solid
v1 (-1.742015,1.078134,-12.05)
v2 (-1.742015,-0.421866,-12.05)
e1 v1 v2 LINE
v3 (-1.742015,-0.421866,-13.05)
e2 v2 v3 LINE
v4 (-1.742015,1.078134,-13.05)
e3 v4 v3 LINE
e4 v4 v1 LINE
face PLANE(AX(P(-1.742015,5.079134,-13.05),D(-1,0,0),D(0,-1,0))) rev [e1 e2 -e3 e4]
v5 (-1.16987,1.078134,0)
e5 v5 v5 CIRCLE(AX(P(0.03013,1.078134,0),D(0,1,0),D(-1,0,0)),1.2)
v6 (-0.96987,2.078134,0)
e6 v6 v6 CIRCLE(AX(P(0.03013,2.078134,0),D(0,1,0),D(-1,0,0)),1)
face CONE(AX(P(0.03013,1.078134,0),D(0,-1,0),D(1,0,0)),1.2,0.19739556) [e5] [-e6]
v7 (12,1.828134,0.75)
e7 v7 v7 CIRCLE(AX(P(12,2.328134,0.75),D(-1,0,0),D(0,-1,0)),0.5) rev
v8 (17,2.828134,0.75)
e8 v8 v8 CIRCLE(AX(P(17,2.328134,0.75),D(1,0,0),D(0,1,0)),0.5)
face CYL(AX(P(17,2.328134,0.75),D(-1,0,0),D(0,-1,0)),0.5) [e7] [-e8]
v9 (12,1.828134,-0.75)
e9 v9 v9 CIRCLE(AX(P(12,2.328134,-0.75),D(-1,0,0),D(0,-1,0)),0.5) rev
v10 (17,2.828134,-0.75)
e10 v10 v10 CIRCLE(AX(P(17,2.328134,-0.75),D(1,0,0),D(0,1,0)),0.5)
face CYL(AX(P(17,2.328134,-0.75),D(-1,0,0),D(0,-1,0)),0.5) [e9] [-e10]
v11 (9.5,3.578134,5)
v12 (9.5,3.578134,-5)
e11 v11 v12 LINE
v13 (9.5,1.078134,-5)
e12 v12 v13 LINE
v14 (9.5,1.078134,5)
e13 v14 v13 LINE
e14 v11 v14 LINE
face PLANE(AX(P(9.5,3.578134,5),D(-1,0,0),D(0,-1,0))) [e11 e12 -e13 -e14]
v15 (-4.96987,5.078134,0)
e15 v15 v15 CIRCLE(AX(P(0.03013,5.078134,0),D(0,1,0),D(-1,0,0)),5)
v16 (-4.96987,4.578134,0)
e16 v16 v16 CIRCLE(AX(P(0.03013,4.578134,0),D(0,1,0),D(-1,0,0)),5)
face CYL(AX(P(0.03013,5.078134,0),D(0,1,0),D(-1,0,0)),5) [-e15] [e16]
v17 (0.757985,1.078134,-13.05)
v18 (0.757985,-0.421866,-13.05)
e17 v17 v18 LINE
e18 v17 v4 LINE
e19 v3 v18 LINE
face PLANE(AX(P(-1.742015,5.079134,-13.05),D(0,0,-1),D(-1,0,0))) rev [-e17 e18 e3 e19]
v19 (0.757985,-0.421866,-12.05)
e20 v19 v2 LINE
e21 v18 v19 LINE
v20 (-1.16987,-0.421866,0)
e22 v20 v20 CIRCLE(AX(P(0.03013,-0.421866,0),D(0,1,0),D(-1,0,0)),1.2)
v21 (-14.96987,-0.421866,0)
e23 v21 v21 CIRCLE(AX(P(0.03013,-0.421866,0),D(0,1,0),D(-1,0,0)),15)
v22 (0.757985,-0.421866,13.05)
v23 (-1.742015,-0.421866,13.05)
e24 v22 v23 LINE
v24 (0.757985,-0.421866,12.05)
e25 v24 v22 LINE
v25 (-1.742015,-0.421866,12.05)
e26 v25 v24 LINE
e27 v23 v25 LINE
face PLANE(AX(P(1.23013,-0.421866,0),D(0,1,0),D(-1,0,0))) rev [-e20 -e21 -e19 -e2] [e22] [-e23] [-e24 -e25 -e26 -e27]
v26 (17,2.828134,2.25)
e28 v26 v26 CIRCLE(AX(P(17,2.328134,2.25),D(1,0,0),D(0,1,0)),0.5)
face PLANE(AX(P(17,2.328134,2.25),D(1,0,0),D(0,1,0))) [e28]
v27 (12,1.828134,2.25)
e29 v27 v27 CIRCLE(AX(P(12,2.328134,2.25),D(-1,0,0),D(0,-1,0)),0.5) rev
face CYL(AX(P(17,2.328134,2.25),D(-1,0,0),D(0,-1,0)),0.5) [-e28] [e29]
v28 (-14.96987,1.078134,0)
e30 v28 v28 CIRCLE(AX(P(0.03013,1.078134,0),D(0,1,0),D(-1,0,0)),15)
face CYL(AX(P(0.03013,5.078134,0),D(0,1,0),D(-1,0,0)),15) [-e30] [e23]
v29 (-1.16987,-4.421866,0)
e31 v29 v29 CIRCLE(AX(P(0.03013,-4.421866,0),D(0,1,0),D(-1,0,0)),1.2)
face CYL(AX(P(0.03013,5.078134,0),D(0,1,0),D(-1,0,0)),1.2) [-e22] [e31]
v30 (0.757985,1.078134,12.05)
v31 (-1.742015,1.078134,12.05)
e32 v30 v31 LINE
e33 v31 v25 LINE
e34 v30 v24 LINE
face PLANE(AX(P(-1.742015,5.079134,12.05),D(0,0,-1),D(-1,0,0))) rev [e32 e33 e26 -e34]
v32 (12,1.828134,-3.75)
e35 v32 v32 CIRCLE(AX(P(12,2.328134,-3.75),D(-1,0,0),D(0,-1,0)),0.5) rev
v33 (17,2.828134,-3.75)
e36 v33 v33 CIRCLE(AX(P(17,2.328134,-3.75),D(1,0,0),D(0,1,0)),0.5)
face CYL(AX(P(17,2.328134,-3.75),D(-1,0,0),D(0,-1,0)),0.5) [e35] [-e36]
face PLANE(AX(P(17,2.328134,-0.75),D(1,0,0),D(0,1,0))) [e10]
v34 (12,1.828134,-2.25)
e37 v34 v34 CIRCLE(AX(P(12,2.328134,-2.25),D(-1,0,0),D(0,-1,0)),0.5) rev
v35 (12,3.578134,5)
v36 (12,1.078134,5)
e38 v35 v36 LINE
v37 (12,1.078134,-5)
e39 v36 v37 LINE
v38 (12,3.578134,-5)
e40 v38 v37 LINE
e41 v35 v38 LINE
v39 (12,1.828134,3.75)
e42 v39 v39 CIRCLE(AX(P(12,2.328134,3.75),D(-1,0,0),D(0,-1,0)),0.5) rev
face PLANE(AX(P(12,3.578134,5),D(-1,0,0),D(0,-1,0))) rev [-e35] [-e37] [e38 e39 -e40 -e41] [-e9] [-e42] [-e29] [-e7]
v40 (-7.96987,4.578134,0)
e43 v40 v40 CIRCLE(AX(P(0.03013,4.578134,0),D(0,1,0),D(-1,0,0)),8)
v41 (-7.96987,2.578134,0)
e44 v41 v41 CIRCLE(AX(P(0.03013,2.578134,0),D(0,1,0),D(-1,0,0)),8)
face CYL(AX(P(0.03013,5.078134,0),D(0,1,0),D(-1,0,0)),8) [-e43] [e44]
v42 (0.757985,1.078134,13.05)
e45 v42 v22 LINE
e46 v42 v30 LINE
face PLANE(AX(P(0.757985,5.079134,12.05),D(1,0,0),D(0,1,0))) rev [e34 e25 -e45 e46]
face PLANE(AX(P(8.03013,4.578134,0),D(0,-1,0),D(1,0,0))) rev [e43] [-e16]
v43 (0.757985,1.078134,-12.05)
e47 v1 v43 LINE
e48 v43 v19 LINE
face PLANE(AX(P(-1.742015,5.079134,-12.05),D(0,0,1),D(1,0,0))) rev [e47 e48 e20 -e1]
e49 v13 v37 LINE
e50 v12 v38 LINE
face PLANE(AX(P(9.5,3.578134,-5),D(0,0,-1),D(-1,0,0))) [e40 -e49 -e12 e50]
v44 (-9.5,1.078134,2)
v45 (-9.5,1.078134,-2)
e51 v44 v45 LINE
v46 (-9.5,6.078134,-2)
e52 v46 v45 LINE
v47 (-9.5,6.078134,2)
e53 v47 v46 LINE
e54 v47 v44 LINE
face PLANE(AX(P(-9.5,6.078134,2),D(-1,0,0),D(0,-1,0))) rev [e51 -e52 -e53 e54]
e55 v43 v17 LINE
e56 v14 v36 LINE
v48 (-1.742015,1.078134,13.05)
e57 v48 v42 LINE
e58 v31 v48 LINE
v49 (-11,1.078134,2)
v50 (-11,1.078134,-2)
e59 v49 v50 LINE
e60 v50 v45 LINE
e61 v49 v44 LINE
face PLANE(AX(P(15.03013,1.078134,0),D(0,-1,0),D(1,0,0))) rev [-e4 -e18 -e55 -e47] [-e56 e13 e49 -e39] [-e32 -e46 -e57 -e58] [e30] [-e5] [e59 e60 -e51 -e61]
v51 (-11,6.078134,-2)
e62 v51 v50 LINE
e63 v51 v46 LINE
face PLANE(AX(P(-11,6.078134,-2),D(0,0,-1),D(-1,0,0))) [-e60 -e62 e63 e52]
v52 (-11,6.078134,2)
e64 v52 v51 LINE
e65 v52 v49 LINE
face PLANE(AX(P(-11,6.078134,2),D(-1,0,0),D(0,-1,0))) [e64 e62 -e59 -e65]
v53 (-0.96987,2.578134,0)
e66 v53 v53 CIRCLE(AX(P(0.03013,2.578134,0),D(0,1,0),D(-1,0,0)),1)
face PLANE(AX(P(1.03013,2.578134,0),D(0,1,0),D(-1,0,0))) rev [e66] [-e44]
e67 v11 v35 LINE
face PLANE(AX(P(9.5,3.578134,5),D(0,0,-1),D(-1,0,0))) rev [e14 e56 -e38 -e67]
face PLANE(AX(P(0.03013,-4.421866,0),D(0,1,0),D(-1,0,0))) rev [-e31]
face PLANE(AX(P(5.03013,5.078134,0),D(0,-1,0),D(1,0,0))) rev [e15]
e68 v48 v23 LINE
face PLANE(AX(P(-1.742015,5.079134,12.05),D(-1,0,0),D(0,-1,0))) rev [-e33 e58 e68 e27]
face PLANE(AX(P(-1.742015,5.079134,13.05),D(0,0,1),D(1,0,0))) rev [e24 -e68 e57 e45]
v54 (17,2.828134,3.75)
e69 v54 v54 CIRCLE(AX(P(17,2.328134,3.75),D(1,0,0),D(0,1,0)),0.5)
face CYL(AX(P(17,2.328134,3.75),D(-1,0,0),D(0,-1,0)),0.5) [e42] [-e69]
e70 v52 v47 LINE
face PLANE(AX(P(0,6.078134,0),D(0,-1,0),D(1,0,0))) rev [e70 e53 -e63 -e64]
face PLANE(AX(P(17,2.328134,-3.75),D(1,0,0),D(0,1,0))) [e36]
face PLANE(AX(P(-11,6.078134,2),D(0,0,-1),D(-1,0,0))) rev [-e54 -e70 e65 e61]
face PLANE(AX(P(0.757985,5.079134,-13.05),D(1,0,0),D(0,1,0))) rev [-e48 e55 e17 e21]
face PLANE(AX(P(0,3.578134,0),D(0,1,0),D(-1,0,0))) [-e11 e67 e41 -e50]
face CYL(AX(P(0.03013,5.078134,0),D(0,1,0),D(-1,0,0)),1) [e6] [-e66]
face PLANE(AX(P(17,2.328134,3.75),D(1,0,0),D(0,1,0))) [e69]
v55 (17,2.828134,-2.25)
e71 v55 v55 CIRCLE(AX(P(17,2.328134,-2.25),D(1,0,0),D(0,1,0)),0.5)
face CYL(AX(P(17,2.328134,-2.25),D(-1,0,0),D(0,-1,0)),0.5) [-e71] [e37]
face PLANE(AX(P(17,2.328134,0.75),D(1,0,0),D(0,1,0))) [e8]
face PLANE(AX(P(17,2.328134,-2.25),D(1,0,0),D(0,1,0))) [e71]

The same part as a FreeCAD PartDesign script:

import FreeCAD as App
import Part
import Sketcher
from FreeCAD import Vector
Q = App.Units.Quantity

doc = App.newDocument("Part")
body = doc.addObject("PartDesign::Body", "Body")

sketch1 = body.newObject("Sketcher::SketchObject", "Sketch")
sketch1.AttachmentSupport = (doc.getObject("XY_Plane"), [""])
sketch1.MapMode = "FlatFace"
sketch1.addGeometry(Part.LineSegment(Vector(0.03013, -4.421866, 0), Vector(1.23013, -4.421866, 0)), False)
sketch1.addGeometry(Part.LineSegment(Vector(1.23013, -4.421866, 0), Vector(1.23013, -0.421866, 0)), False)
sketch1.addGeometry(Part.LineSegment(Vector(1.23013, -0.421866, 0), Vector(15.03013, -0.421866, 0)), False)
sketch1.addGeometry(Part.LineSegment(Vector(15.03013, -0.421866, 0), Vector(15.03013, 1.078134, 0)), False)
sketch1.addGeometry(Part.LineSegment(Vector(15.03013, 1.078134, 0), Vector(1.23013, 1.078134, 0)), False)
sketch1.addGeometry(Part.LineSegment(Vector(1.23013, 1.078134, 0), Vector(1.03013, 2.078134, 0)), False)
sketch1.addGeometry(Part.LineSegment(Vector(1.03013, 2.078134, 0), Vector(1.03013, 2.578134, 0)), False)
sketch1.addGeometry(Part.LineSegment(Vector(1.03013, 2.578134, 0), Vector(8.03013, 2.578134, 0)), False)
sketch1.addGeometry(Part.LineSegment(Vector(8.03013, 2.578134, 0), Vector(8.03013, 4.578134, 0)), False)
sketch1.addGeometry(Part.LineSegment(Vector(8.03013, 4.578134, 0), Vector(5.03013, 4.578134, 0)), False)
sketch1.addGeometry(Part.LineSegment(Vector(5.03013, 4.578134, 0), Vector(5.03013, 5.078134, 0)), False)
sketch1.addGeometry(Part.LineSegment(Vector(5.03013, 5.078134, 0), Vector(0.03013, 5.078134, 0)), False)
sketch1.addGeometry(Part.LineSegment(Vector(0.03013, 5.078134, 0), Vector(0.03013, -4.421866, 0)), False)
sketch1.addGeometry(Part.LineSegment(Vector(0.03013, 5.078134, 0), Vector(0.03013, -4.421866, 0)), True)
sketch1.addConstraint(Sketcher.Constraint("Coincident", 0, 2, 1, 1))
sketch1.addConstraint(Sketcher.Constraint("Coincident", 1, 2, 2, 1))
sketch1.addConstraint(Sketcher.Constraint("Coincident", 2, 2, 3, 1))
sketch1.addConstraint(Sketcher.Constraint("Coincident", 3, 2, 4, 1))
sketch1.addConstraint(Sketcher.Constraint("Coincident", 4, 2, 5, 1))
sketch1.addConstraint(Sketcher.Constraint("Coincident", 5, 2, 6, 1))
sketch1.addConstraint(Sketcher.Constraint("Coincident", 6, 2, 7, 1))
sketch1.addConstraint(Sketcher.Constraint("Coincident", 7, 2, 8, 1))
sketch1.addConstraint(Sketcher.Constraint("Coincident", 8, 2, 9, 1))
sketch1.addConstraint(Sketcher.Constraint("Coincident", 9, 2, 10, 1))
sketch1.addConstraint(Sketcher.Constraint("Coincident", 10, 2, 11, 1))
sketch1.addConstraint(Sketcher.Constraint("Coincident", 11, 2, 12, 1))
sketch1.addConstraint(Sketcher.Constraint("Coincident", 12, 2, 0, 1))
sketch1.addConstraint(Sketcher.Constraint("Horizontal", 0))
sketch1.addConstraint(Sketcher.Constraint("Vertical", 1))
sketch1.addConstraint(Sketcher.Constraint("Horizontal", 2))
sketch1.addConstraint(Sketcher.Constraint("Vertical", 3))
sketch1.addConstraint(Sketcher.Constraint("Horizontal", 4))
sketch1.addConstraint(Sketcher.Constraint("Vertical", 6))
sketch1.addConstraint(Sketcher.Constraint("Horizontal", 7))
sketch1.addConstraint(Sketcher.Constraint("Vertical", 8))
sketch1.addConstraint(Sketcher.Constraint("Horizontal", 9))
sketch1.addConstraint(Sketcher.Constraint("Vertical", 10))
sketch1.addConstraint(Sketcher.Constraint("Horizontal", 11))
sketch1.addConstraint(Sketcher.Constraint("Vertical", 12))
sketch1.addConstraint(Sketcher.Constraint("Vertical", 13))
sketch1.addConstraint(Sketcher.Constraint("Coincident", 13, 1, 11, 2))
sketch1.addConstraint(Sketcher.Constraint("Horizontal", 0, 2, 13, 2))
sketch1.addConstraint(Sketcher.Constraint("Vertical", 1, 2, 4, 2))
sketch1.addConstraint(Sketcher.Constraint("Equal", 6, 10))
sketch1.addConstraint(Sketcher.Constraint("DistanceX", 7, 1, 7, 2, Q("7 mm")))
sketch1.addConstraint(Sketcher.Constraint("DistanceX", 9, 2, 9, 1, Q("3 mm")))
sketch1.addConstraint(Sketcher.Constraint("DistanceX", 11, 2, 11, 1, Q("5 mm")))
sketch1.addConstraint(Sketcher.Constraint("DistanceY", 1, 1, 1, 2, Q("4 mm")))
sketch1.addConstraint(Sketcher.Constraint("DistanceY", 8, 1, 8, 2, Q("2 mm")))
sketch1.addConstraint(Sketcher.Constraint("DistanceX", 0, 1, 0, 2, Q("1.2 mm")))
sketch1.addConstraint(Sketcher.Constraint("DistanceX", 2, 1, 2, 2, Q("13.8 mm")))
sketch1.addConstraint(Sketcher.Constraint("DistanceY", 3, 1, 3, 2, Q("1.5 mm")))
sketch1.addConstraint(Sketcher.Constraint("DistanceY", 6, 1, 6, 2, Q("0.5 mm")))
sketch1.addConstraint(Sketcher.Constraint("DistanceY", 12, 2, 12, 1, Q("9.5 mm")))
sketch1.addConstraint(Sketcher.Constraint("DistanceX", -1, 1, 0, 2, Q("1.23013 mm")))
sketch1.addConstraint(Sketcher.Constraint("DistanceY", 0, 2, -1, 1, Q("4.421866 mm")))
revolution = body.newObject("PartDesign::Revolution", "Revolution")
revolution.Profile = sketch1
revolution.ReferenceAxis = (sketch1, ["Axis0"])
revolution.Angle = 360

sketch2 = body.newObject("Sketcher::SketchObject", "Sketch001")
sketch2.AttachmentSupport = (doc.getObject("XZ_Plane"), [""])
sketch2.MapMode = "FlatFace"
sketch2.AttachmentOffset = App.Placement(Vector(0, 0, 0.421866), App.Rotation())
sketch2.addGeometry(Part.LineSegment(Vector(-1.742015, -12.05, 0), Vector(-1.742015, -13.05, 0)), False)
sketch2.addGeometry(Part.LineSegment(Vector(-1.742015, -13.05, 0), Vector(0.757985, -13.05, 0)), False)
sketch2.addGeometry(Part.LineSegment(Vector(0.757985, -13.05, 0), Vector(0.757985, -12.05, 0)), False)
sketch2.addGeometry(Part.LineSegment(Vector(0.757985, -12.05, 0), Vector(-1.742015, -12.05, 0)), False)
sketch2.addConstraint(Sketcher.Constraint("Coincident", 0, 2, 1, 1))
sketch2.addConstraint(Sketcher.Constraint("Coincident", 1, 2, 2, 1))
sketch2.addConstraint(Sketcher.Constraint("Coincident", 2, 2, 3, 1))
sketch2.addConstraint(Sketcher.Constraint("Coincident", 3, 2, 0, 1))
sketch2.addConstraint(Sketcher.Constraint("Vertical", 0))
sketch2.addConstraint(Sketcher.Constraint("Horizontal", 1))
sketch2.addConstraint(Sketcher.Constraint("Vertical", 2))
sketch2.addConstraint(Sketcher.Constraint("Horizontal", 3))
sketch2.addConstraint(Sketcher.Constraint("DistanceY", 0, 2, 0, 1, Q("1 mm")))
sketch2.addConstraint(Sketcher.Constraint("DistanceX", 1, 1, 1, 2, Q("2.5 mm")))
sketch2.addConstraint(Sketcher.Constraint("DistanceY", 0, 2, -1, 1, Q("13.05 mm")))
sketch2.addConstraint(Sketcher.Constraint("DistanceX", 0, 2, -1, 1, Q("1.742015 mm")))
pocket1 = body.newObject("PartDesign::Pocket", "Pocket")
pocket1.Profile = sketch2
pocket1.Type = "UpToFirst"

sketch3 = body.newObject("Sketcher::SketchObject", "Sketch002")
sketch3.AttachmentSupport = (doc.getObject("XZ_Plane"), [""])
sketch3.MapMode = "FlatFace"
sketch3.AttachmentOffset = App.Placement(Vector(0, 0, 0.421866), App.Rotation())
sketch3.addGeometry(Part.LineSegment(Vector(-1.742015, 13.05, 0), Vector(-1.742015, 12.05, 0)), False)
sketch3.addGeometry(Part.LineSegment(Vector(-1.742015, 12.05, 0), Vector(0.757985, 12.05, 0)), False)
sketch3.addGeometry(Part.LineSegment(Vector(0.757985, 12.05, 0), Vector(0.757985, 13.05, 0)), False)
sketch3.addGeometry(Part.LineSegment(Vector(0.757985, 13.05, 0), Vector(-1.742015, 13.05, 0)), False)
sketch3.addConstraint(Sketcher.Constraint("Coincident", 0, 2, 1, 1))
sketch3.addConstraint(Sketcher.Constraint("Coincident", 1, 2, 2, 1))
sketch3.addConstraint(Sketcher.Constraint("Coincident", 2, 2, 3, 1))
sketch3.addConstraint(Sketcher.Constraint("Coincident", 3, 2, 0, 1))
sketch3.addConstraint(Sketcher.Constraint("Vertical", 0))
sketch3.addConstraint(Sketcher.Constraint("Horizontal", 1))
sketch3.addConstraint(Sketcher.Constraint("Vertical", 2))
sketch3.addConstraint(Sketcher.Constraint("Horizontal", 3))
sketch3.addConstraint(Sketcher.Constraint("DistanceY", 0, 2, 0, 1, Q("1 mm")))
sketch3.addConstraint(Sketcher.Constraint("DistanceX", 1, 1, 1, 2, Q("2.5 mm")))
sketch3.addConstraint(Sketcher.Constraint("DistanceY", -1, 1, 0, 2, Q("12.05 mm")))
sketch3.addConstraint(Sketcher.Constraint("DistanceX", 0, 2, -1, 1, Q("1.742015 mm")))
pocket2 = body.newObject("PartDesign::Pocket", "Pocket001")
pocket2.Profile = sketch3
pocket2.Type = "UpToFirst"

sketch4 = body.newObject("Sketcher::SketchObject", "Sketch003")
sketch4.AttachmentSupport = (doc.getObject("XZ_Plane"), [""])
sketch4.MapMode = "FlatFace"
sketch4.AttachmentOffset = App.Placement(Vector(0, 0, -1.078134), App.Rotation())
sketch4.addGeometry(Part.LineSegment(Vector(-11, -2, 0), Vector(-11, 2, 0)), False)
sketch4.addGeometry(Part.LineSegment(Vector(-11, 2, 0), Vector(-9.5, 2, 0)), False)
sketch4.addGeometry(Part.LineSegment(Vector(-9.5, 2, 0), Vector(-9.5, -2, 0)), False)
sketch4.addGeometry(Part.LineSegment(Vector(-9.5, -2, 0), Vector(-11, -2, 0)), False)
sketch4.addConstraint(Sketcher.Constraint("Coincident", 0, 2, 1, 1))
sketch4.addConstraint(Sketcher.Constraint("Coincident", 1, 2, 2, 1))
sketch4.addConstraint(Sketcher.Constraint("Coincident", 2, 2, 3, 1))
sketch4.addConstraint(Sketcher.Constraint("Coincident", 3, 2, 0, 1))
sketch4.addConstraint(Sketcher.Constraint("Vertical", 0))
sketch4.addConstraint(Sketcher.Constraint("Horizontal", 1))
sketch4.addConstraint(Sketcher.Constraint("Vertical", 2))
sketch4.addConstraint(Sketcher.Constraint("Horizontal", 3))
sketch4.addConstraint(Sketcher.Constraint("DistanceY", 0, 1, 0, 2, Q("4 mm")))
sketch4.addConstraint(Sketcher.Constraint("DistanceX", 1, 1, 1, 2, Q("1.5 mm")))
sketch4.addConstraint(Sketcher.Constraint("DistanceX", 0, 2, -1, 1, Q("11 mm")))
sketch4.addConstraint(Sketcher.Constraint("DistanceY", -1, 1, 0, 2, Q("2 mm")))
pad1 = body.newObject("PartDesign::Pad", "Pad")
pad1.Profile = sketch4
pad1.Length = 5
pad1.Reversed = True

sketch5 = body.newObject("Sketcher::SketchObject", "Sketch004")
sketch5.AttachmentSupport = (doc.getObject("XZ_Plane"), [""])
sketch5.MapMode = "FlatFace"
sketch5.AttachmentOffset = App.Placement(Vector(0, 0, -1.078134), App.Rotation())
sketch5.addGeometry(Part.LineSegment(Vector(9.5, -5, 0), Vector(9.5, 5, 0)), False)
sketch5.addGeometry(Part.LineSegment(Vector(9.5, 5, 0), Vector(12, 5, 0)), False)
sketch5.addGeometry(Part.LineSegment(Vector(12, 5, 0), Vector(12, -5, 0)), False)
sketch5.addGeometry(Part.LineSegment(Vector(12, -5, 0), Vector(9.5, -5, 0)), False)
sketch5.addConstraint(Sketcher.Constraint("Coincident", 0, 2, 1, 1))
sketch5.addConstraint(Sketcher.Constraint("Coincident", 1, 2, 2, 1))
sketch5.addConstraint(Sketcher.Constraint("Coincident", 2, 2, 3, 1))
sketch5.addConstraint(Sketcher.Constraint("Coincident", 3, 2, 0, 1))
sketch5.addConstraint(Sketcher.Constraint("Vertical", 0))
sketch5.addConstraint(Sketcher.Constraint("Horizontal", 1))
sketch5.addConstraint(Sketcher.Constraint("Vertical", 2))
sketch5.addConstraint(Sketcher.Constraint("Horizontal", 3))
sketch5.addConstraint(Sketcher.Constraint("DistanceY", 0, 1, 0, 2, Q("10 mm")))
sketch5.addConstraint(Sketcher.Constraint("DistanceX", 1, 1, 1, 2, Q("2.5 mm")))
sketch5.addConstraint(Sketcher.Constraint("DistanceY", -1, 1, 0, 2, Q("5 mm")))
sketch5.addConstraint(Sketcher.Constraint("DistanceX", -1, 1, 1, 2, Q("12 mm")))
pad2 = body.newObject("PartDesign::Pad", "Pad001")
pad2.Profile = sketch5
pad2.Length = 2.5
pad2.Reversed = True

sketch6 = body.newObject("Sketcher::SketchObject", "Sketch005")
sketch6.AttachmentSupport = (doc.getObject("YZ_Plane"), [""])
sketch6.MapMode = "FlatFace"
sketch6.AttachmentOffset = App.Placement(Vector(0, 0, 12), App.Rotation())
sketch6.addGeometry(Part.Circle(Vector(2.328134, 3.75, 0), Vector(0, 0, 1), 0.5), False)
sketch6.addGeometry(Part.Circle(Vector(2.328134, 2.25, 0), Vector(0, 0, 1), 0.5), False)
sketch6.addGeometry(Part.Circle(Vector(2.328134, 0.75, 0), Vector(0, 0, 1), 0.5), False)
sketch6.addGeometry(Part.Circle(Vector(2.328134, -0.75, 0), Vector(0, 0, 1), 0.5), False)
sketch6.addGeometry(Part.Circle(Vector(2.328134, -2.25, 0), Vector(0, 0, 1), 0.5), False)
sketch6.addGeometry(Part.Circle(Vector(2.328134, -3.75, 0), Vector(0, 0, 1), 0.5), False)
sketch6.addConstraint(Sketcher.Constraint("Equal", 0, 1))
sketch6.addConstraint(Sketcher.Constraint("Equal", 1, 2))
sketch6.addConstraint(Sketcher.Constraint("Equal", 2, 3))
sketch6.addConstraint(Sketcher.Constraint("Equal", 3, 4))
sketch6.addConstraint(Sketcher.Constraint("Equal", 4, 5))
sketch6.addConstraint(Sketcher.Constraint("Symmetric", 2, 3, 3, 3, -1))
sketch6.addConstraint(Sketcher.Constraint("Symmetric", 1, 3, 4, 3, -1))
sketch6.addConstraint(Sketcher.Constraint("Symmetric", 0, 3, 5, 3, -1))
sketch6.addConstraint(Sketcher.Constraint("Vertical", 0, 3, 1, 3))
sketch6.addConstraint(Sketcher.Constraint("Vertical", 1, 3, 2, 3))
sketch6.addConstraint(Sketcher.Constraint("Diameter", 0, Q("1 mm")))
sketch6.addConstraint(Sketcher.Constraint("DistanceY", 2, 3, 0, 3, Q("3 mm")))
sketch6.addConstraint(Sketcher.Constraint("DistanceY", 3, 3, 1, 3, Q("3 mm")))
sketch6.addConstraint(Sketcher.Constraint("DistanceY", 1, 3, 0, 3, Q("1.5 mm")))
sketch6.addConstraint(Sketcher.Constraint("DistanceX", -1, 1, 0, 3, Q("2.328134 mm")))
pad3 = body.newObject("PartDesign::Pad", "Pad002")
pad3.Profile = sketch6
pad3.Length = 5

doc.recompute()
